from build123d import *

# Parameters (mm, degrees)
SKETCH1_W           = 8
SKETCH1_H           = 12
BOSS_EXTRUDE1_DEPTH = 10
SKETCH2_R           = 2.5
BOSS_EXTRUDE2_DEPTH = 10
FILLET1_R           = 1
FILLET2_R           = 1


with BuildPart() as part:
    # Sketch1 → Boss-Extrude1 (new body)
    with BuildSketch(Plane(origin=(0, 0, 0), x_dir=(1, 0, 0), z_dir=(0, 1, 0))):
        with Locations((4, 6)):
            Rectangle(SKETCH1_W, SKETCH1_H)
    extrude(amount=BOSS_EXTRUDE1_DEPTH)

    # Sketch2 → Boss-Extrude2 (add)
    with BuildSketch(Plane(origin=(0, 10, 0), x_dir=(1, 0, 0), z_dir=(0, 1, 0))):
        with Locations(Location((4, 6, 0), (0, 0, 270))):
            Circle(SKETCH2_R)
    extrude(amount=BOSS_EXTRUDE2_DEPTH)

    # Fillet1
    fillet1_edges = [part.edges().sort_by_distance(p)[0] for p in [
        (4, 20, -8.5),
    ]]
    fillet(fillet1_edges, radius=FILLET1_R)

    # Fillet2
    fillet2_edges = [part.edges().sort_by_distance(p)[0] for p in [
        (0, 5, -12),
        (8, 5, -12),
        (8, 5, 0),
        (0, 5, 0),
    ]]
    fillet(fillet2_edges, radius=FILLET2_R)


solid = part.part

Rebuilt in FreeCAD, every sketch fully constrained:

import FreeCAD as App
import Part
import Sketcher

V = App.Vector


def edges_at(feature, points):
    """Names of the edges that pass closest to the given points."""
    edges = feature.Shape.Edges
    near = lambda p: min(range(len(edges)), key=lambda i: edges[i].distToShape(Part.Vertex(*p))[0])
    return sorted({f"Edge{near(p) + 1}" for p in points})

doc = App.newDocument("Part")
body = doc.addObject("PartDesign::Body", "Body")

# Sketch on XZ plane
sketch1 = body.newObject("Sketcher::SketchObject", "Sketch")
sketch1.AttachmentSupport = (doc.getObject("XZ_Plane"), [""])
sketch1.MapMode = "FlatFace"
sketch1.addGeometry(Part.LineSegment(V(0, -12, 0), V(0, 0, 0)), False)
sketch1.addGeometry(Part.LineSegment(V(0, 0, 0), V(8, 0, 0)), False)
sketch1.addGeometry(Part.LineSegment(V(8, 0, 0), V(8, -12, 0)), False)
sketch1.addGeometry(Part.LineSegment(V(8, -12, 0), V(0, -12, 0)), False)
sketch1.addConstraint(Sketcher.Constraint("Coincident", 0, 2, 1, 1))
sketch1.addConstraint(Sketcher.Constraint("Coincident", 1, 2, 2, 1))
sketch1.addConstraint(Sketcher.Constraint("Coincident", 2, 2, 3, 1))
sketch1.addConstraint(Sketcher.Constraint("Coincident", 3, 2, 0, 1))
sketch1.addConstraint(Sketcher.Constraint("Vertical", 0))
sketch1.addConstraint(Sketcher.Constraint("Horizontal", 1))
sketch1.addConstraint(Sketcher.Constraint("Vertical", 2))
sketch1.addConstraint(Sketcher.Constraint("Horizontal", 3))
sketch1.addConstraint(Sketcher.Constraint("Coincident", 0, 2, -1, 1))
sketch1.addConstraint(Sketcher.Constraint("DistanceX", 1, 1, 1, 2, 8.0))
sketch1.addConstraint(Sketcher.Constraint("DistanceY", 0, 1, 0, 2, 12.0))
pad1 = body.newObject("PartDesign::Pad", "Pad")
pad1.Profile = sketch1
pad1.Length = 10
pad1.Reversed = True

# Sketch on XZ plane
sketch2 = body.newObject("Sketcher::SketchObject", "Sketch001")
sketch2.AttachmentSupport = (doc.getObject("XZ_Plane"), [""])
sketch2.MapMode = "FlatFace"
sketch2.AttachmentOffset = App.Placement(V(0, 0, -10), App.Rotation())
sketch2.addGeometry(Part.Circle(V(4, -6, 0), V(0, 0, 1), 2.5), False)
sketch2.addConstraint(Sketcher.Constraint("Diameter", 0, 5.0))
sketch2.addConstraint(Sketcher.Constraint("DistanceX", -1, 1, 0, 3, 4.0))
sketch2.addConstraint(Sketcher.Constraint("DistanceY", 0, 3, -1, 1, 6.0))
pad2 = body.newObject("PartDesign::Pad", "Pad001")
pad2.Profile = sketch2
pad2.Length = 10
pad2.Reversed = True
doc.recompute()

fillet = body.newObject("PartDesign::Fillet", "Fillet")
fillet.Base = (pad2, edges_at(pad2, [(4, 20, -8.5)]))
fillet.Radius = 1
doc.recompute()

fillet2 = body.newObject("PartDesign::Fillet", "Fillet001")
fillet2.Base = (fillet, edges_at(fillet, [
    (0, 5, -12),
    (8, 5, -12),
    (8, 5, 0),
    (0, 5, 0),
]))
fillet2.Radius = 1

doc.recompute()
